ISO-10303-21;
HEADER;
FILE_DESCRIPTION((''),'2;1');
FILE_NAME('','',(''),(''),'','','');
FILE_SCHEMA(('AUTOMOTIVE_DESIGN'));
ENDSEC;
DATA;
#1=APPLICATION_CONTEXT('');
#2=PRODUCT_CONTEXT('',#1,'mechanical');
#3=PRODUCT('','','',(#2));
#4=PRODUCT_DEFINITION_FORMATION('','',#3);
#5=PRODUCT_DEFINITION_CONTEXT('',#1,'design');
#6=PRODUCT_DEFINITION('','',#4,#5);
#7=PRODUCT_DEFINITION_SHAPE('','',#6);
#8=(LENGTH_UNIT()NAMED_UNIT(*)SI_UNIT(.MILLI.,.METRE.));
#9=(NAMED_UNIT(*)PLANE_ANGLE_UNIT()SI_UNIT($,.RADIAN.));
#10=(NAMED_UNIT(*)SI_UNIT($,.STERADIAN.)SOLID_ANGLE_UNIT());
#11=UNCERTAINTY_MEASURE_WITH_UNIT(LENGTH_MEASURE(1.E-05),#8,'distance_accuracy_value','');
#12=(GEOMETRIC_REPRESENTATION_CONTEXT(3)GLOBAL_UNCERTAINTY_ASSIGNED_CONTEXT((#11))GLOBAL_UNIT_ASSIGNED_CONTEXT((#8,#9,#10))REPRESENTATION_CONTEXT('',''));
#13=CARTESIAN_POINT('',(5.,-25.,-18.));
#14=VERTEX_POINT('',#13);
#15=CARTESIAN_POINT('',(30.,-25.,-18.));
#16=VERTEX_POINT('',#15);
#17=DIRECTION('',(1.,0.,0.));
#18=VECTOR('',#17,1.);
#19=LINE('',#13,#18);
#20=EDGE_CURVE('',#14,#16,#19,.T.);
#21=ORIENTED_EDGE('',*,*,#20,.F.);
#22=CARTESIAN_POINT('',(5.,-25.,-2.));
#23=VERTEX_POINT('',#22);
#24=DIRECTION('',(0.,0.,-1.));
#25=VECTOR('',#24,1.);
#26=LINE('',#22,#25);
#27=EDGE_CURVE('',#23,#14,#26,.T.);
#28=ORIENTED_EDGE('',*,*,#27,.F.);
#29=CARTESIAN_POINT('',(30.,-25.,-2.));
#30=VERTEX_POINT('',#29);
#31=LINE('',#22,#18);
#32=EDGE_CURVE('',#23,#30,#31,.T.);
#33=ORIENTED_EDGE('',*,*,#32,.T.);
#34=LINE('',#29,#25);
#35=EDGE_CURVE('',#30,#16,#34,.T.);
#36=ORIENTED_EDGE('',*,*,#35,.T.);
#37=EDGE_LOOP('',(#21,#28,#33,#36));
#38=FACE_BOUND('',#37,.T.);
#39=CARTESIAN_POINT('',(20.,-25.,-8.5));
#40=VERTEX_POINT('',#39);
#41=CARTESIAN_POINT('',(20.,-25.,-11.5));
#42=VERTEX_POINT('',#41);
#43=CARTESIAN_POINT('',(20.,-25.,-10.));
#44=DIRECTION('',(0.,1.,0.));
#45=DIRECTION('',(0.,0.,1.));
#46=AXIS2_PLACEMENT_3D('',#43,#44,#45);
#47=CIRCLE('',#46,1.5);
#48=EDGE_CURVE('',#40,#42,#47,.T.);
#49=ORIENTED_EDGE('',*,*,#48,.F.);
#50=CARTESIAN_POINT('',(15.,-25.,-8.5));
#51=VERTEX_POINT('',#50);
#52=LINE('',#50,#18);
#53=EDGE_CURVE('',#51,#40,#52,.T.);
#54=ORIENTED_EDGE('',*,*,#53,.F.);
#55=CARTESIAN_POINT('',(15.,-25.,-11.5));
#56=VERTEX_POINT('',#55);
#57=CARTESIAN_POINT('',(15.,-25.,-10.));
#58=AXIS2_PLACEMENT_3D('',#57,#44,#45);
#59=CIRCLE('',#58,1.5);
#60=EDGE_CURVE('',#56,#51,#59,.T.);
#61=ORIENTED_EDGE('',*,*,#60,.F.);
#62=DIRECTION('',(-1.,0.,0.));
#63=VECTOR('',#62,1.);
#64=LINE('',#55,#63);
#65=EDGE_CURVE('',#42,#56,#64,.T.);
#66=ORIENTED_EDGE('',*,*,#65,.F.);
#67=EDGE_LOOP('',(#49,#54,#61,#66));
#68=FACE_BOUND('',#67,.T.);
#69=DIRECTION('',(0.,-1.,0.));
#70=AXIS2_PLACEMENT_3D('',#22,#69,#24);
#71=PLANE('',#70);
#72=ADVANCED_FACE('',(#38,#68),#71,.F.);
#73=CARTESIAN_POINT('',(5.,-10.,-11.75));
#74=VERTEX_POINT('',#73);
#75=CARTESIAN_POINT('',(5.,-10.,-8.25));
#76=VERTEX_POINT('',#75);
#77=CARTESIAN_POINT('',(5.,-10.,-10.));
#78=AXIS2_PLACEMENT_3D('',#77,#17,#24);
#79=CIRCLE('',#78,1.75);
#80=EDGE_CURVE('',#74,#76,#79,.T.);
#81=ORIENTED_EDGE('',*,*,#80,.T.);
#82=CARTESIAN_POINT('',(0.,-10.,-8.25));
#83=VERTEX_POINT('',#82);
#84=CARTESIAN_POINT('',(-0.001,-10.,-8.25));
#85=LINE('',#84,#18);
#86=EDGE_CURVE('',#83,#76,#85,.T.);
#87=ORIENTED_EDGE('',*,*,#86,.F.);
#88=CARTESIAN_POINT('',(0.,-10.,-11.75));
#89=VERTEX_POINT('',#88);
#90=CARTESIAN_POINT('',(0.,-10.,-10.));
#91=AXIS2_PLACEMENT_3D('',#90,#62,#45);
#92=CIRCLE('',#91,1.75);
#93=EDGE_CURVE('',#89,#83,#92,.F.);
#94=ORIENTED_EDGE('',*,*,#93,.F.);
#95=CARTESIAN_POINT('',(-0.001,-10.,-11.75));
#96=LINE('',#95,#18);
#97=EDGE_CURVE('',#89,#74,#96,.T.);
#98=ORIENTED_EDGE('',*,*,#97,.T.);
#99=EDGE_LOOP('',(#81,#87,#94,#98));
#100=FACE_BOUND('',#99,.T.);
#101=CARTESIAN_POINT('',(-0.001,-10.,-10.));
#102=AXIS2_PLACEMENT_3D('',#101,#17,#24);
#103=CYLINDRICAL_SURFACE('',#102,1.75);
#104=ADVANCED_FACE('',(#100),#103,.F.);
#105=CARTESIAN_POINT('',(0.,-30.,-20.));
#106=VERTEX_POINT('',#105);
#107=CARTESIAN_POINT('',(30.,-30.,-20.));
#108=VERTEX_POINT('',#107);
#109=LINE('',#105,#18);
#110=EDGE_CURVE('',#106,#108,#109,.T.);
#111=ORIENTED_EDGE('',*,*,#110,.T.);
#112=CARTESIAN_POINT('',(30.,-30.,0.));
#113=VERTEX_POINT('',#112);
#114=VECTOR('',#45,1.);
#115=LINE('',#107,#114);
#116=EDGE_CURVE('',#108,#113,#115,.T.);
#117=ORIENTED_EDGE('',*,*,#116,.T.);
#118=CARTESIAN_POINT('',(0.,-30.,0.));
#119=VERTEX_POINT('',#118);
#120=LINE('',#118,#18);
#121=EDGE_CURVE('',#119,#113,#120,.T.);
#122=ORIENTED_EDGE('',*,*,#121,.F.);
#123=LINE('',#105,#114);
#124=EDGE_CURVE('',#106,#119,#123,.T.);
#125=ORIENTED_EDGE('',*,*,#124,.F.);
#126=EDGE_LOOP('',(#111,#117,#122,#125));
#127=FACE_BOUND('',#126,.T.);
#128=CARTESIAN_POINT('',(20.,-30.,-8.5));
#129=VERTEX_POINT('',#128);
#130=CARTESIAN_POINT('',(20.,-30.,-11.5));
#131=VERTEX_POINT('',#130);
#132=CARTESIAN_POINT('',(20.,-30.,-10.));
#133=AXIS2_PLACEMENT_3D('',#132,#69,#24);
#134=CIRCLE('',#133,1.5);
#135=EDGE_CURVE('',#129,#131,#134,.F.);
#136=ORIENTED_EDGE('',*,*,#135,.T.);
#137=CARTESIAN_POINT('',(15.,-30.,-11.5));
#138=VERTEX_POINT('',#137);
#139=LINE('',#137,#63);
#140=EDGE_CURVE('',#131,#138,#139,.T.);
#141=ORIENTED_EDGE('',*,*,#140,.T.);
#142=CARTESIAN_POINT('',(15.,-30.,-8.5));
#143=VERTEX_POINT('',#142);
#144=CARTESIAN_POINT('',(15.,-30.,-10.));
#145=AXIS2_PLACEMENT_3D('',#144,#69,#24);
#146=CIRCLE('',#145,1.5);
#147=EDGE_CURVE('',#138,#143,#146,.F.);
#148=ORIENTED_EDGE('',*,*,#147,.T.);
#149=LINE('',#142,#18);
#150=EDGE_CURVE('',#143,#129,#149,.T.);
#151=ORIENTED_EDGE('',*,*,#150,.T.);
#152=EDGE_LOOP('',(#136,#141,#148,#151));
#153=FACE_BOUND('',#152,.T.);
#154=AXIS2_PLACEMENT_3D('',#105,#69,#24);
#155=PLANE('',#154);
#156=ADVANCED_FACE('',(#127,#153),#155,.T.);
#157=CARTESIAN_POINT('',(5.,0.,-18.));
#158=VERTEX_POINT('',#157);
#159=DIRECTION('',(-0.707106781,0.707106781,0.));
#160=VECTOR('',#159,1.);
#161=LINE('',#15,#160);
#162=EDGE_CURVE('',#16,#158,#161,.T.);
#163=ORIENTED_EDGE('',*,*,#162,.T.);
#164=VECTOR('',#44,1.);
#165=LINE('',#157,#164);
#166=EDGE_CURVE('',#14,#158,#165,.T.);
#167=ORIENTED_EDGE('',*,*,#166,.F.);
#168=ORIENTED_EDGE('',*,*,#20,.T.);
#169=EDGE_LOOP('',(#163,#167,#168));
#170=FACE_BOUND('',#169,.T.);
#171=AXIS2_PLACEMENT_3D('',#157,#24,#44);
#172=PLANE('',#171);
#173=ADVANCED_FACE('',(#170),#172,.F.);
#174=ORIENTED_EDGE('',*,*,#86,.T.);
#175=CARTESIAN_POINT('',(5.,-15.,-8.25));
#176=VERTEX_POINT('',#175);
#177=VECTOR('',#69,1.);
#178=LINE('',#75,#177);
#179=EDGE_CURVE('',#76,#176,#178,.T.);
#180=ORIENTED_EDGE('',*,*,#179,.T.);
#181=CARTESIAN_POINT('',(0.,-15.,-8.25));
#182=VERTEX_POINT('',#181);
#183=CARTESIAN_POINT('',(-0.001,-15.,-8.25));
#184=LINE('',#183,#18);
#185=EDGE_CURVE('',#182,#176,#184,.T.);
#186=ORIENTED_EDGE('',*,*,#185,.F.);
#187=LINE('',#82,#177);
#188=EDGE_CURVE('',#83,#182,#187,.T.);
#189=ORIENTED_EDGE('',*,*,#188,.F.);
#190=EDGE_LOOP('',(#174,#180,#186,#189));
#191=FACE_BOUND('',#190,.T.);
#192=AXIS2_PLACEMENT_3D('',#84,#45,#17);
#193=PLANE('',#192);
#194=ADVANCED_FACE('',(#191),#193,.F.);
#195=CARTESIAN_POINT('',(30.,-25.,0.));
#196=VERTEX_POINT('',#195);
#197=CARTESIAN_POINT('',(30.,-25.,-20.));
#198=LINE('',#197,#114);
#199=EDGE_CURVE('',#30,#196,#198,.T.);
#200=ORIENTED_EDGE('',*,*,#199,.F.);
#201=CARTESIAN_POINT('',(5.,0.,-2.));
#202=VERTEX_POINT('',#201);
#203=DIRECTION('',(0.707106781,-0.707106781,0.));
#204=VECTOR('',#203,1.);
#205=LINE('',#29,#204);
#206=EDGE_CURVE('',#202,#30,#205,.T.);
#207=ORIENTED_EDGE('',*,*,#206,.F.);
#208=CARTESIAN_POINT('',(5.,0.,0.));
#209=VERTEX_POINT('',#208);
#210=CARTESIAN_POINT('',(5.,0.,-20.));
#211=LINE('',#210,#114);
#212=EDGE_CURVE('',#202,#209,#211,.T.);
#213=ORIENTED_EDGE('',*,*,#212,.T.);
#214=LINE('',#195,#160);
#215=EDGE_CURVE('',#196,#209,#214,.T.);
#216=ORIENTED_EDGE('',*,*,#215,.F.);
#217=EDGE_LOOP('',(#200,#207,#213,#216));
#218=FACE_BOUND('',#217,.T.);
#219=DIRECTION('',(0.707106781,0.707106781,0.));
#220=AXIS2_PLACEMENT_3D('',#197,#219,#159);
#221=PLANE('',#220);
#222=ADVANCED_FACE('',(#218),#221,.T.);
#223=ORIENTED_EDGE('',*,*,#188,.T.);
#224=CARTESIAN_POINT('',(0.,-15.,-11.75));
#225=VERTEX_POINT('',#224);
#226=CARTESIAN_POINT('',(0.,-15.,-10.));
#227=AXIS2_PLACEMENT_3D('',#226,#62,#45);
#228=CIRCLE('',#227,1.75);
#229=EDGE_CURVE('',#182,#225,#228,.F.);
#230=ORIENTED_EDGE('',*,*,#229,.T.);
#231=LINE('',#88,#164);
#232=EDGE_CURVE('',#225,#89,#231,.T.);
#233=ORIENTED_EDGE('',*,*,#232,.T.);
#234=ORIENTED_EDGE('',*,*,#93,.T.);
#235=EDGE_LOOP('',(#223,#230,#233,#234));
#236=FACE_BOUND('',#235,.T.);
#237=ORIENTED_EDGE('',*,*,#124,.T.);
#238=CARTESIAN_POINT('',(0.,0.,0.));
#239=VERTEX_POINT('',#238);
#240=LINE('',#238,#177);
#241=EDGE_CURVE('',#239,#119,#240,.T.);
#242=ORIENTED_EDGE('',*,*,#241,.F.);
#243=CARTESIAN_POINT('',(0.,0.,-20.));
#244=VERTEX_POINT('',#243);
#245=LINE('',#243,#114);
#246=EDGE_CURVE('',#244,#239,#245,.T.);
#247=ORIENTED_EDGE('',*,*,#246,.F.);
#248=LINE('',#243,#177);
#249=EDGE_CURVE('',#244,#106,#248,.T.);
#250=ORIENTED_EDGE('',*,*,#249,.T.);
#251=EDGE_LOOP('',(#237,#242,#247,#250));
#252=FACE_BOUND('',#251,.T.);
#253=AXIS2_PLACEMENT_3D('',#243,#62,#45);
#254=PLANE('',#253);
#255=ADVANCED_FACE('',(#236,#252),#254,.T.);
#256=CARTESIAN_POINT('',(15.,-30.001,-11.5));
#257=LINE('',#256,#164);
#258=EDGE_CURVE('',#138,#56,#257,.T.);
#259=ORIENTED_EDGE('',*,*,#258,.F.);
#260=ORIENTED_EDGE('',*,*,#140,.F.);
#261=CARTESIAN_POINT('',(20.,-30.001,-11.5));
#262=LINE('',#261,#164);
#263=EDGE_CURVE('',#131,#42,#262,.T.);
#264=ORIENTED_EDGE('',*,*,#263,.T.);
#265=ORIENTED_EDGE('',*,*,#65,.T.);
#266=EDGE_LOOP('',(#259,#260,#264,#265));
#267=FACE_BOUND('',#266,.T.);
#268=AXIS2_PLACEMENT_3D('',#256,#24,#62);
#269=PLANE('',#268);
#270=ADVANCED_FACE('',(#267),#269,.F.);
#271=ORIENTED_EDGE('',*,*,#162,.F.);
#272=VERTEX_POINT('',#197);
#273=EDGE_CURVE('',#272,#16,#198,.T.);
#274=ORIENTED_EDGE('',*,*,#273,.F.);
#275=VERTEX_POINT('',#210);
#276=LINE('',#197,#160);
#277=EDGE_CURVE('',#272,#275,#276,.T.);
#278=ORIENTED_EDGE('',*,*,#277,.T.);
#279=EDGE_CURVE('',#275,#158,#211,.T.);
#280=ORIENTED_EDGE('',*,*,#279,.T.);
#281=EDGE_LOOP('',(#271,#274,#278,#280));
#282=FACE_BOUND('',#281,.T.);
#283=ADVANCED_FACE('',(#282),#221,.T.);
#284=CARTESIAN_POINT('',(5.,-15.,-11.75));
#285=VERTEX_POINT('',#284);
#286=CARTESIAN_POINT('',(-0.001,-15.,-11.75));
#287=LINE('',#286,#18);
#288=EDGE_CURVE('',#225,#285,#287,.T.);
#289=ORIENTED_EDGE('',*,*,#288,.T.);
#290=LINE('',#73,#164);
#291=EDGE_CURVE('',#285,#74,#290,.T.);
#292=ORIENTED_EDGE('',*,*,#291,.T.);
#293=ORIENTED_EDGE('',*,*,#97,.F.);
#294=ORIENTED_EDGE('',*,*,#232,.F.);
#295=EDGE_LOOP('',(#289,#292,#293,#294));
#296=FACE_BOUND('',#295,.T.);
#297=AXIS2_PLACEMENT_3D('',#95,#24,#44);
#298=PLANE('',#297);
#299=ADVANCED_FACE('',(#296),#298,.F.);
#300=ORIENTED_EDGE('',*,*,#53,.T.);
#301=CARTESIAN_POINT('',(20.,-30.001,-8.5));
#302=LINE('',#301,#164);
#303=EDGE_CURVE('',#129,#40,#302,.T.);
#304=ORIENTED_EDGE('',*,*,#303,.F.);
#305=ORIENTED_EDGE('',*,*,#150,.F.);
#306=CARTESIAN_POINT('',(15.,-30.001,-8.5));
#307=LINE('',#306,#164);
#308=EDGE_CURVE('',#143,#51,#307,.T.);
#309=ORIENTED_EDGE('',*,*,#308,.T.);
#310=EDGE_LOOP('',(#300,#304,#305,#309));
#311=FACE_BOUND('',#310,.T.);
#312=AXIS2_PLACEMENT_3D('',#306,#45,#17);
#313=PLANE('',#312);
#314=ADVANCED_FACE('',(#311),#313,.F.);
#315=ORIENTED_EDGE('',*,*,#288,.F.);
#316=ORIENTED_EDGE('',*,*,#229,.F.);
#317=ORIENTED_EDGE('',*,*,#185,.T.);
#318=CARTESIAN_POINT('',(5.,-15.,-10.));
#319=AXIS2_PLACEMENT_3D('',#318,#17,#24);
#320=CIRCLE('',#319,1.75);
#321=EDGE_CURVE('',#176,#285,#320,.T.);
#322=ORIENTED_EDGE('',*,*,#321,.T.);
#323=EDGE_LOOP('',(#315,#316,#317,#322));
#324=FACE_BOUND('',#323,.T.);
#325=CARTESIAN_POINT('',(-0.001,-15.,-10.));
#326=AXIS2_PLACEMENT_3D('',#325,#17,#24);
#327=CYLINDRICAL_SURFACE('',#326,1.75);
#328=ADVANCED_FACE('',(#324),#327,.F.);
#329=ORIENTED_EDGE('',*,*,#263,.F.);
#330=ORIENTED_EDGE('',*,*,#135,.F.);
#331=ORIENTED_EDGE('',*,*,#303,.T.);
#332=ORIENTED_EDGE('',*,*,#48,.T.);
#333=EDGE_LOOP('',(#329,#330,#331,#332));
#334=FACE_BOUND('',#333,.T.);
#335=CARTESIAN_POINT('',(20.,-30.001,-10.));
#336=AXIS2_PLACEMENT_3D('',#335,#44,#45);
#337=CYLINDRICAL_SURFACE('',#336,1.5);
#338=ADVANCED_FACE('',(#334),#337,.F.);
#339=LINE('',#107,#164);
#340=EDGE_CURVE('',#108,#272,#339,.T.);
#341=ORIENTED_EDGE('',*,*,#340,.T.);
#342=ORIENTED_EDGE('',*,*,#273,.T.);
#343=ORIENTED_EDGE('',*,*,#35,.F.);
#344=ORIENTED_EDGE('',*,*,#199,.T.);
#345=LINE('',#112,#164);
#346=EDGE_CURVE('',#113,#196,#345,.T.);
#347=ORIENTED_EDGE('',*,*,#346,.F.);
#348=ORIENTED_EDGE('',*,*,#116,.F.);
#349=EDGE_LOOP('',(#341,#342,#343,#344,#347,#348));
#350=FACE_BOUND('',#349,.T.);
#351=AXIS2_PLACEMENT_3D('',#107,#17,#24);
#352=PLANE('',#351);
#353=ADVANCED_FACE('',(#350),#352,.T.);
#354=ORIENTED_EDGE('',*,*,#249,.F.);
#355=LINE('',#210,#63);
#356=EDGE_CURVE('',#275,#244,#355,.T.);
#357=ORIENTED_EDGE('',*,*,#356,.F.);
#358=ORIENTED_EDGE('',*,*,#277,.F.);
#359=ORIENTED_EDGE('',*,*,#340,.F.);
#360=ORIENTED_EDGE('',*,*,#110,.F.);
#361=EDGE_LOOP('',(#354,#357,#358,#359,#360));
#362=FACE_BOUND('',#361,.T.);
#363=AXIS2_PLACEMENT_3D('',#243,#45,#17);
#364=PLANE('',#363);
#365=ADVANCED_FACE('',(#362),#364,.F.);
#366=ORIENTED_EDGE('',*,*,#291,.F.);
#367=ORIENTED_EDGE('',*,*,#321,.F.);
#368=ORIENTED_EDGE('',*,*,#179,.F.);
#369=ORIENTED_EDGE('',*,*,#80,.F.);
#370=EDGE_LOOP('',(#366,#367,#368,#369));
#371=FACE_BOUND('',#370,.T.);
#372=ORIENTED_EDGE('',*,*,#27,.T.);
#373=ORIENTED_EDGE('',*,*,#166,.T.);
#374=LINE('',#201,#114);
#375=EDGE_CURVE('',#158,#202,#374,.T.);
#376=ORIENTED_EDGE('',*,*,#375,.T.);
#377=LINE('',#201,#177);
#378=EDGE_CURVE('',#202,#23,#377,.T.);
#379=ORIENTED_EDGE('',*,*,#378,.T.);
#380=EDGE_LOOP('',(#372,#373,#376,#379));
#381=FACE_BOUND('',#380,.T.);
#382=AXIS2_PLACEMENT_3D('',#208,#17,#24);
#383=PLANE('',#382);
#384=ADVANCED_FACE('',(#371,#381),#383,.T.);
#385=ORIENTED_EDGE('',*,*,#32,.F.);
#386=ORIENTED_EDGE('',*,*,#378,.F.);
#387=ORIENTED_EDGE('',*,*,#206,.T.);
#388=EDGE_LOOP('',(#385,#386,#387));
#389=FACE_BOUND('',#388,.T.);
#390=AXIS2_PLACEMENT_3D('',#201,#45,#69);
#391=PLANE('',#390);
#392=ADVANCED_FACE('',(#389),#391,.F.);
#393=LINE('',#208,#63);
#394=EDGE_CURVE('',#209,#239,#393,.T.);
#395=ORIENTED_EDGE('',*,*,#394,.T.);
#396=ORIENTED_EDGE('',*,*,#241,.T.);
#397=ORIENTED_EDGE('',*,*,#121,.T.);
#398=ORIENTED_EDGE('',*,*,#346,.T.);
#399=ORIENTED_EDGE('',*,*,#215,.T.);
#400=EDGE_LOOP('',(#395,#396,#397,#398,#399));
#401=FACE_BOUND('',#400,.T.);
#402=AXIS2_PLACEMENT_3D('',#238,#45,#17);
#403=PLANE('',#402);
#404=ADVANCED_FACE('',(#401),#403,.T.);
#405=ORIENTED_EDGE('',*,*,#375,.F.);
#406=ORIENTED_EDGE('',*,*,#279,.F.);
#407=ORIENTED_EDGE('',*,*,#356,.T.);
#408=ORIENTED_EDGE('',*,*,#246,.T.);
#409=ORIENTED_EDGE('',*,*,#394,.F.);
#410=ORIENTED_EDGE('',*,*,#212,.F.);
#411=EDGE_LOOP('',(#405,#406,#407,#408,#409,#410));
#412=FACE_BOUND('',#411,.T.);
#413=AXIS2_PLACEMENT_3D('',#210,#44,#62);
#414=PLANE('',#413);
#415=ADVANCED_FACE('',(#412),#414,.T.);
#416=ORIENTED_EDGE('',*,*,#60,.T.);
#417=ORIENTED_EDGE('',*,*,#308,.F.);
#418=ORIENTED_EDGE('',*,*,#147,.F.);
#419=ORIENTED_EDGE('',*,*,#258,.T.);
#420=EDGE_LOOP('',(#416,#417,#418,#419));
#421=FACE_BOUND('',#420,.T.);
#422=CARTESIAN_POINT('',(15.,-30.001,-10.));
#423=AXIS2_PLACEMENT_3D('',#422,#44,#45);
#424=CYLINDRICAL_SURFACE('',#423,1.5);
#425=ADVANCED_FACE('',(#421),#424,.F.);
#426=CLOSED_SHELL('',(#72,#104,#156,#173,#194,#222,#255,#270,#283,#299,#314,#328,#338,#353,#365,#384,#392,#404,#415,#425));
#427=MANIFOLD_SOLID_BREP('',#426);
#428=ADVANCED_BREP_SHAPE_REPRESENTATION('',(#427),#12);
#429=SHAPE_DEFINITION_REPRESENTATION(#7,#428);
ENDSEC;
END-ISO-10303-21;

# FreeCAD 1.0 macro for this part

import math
import FreeCAD as App
import Part
import Sketcher
from FreeCAD import Vector
Q = App.Units.Quantity

doc = App.newDocument("Part")
body = doc.addObject("PartDesign::Body", "Body")

# Sketch on XY plane
sketch1 = doc.addObject("Sketcher::SketchObject", "Sketch")
body.addObject(sketch1)
sketch1.AttachmentSupport = (doc.XY_Plane, [""])
sketch1.MapMode = "FlatFace"
sketch1.addGeometry([
    Part.LineSegment(Vector(0, 0, 0), Vector(0, -30, 0)),  # 0
    Part.LineSegment(Vector(0, -30, 0), Vector(30, -30, 0)),  # 1
    Part.LineSegment(Vector(30, -30, 0), Vector(30, -25, 0)),  # 2
    Part.LineSegment(Vector(30, -25, 0), Vector(5, 0, 0)),  # 3
    Part.LineSegment(Vector(5, 0, 0), Vector(0, 0, 0)),  # 4
], False)
sketch1.addConstraint([
    Sketcher.Constraint("Coincident", 0, 2, 1, 1),
    Sketcher.Constraint("Coincident", 1, 2, 2, 1),
    Sketcher.Constraint("Coincident", 2, 2, 3, 1),
    Sketcher.Constraint("Coincident", 3, 2, 4, 1),
    Sketcher.Constraint("Coincident", 4, 2, 0, 1),
    Sketcher.Constraint("Vertical", 0),
    Sketcher.Constraint("Horizontal", 1),
    Sketcher.Constraint("Vertical", 2),
    Sketcher.Constraint("Horizontal", 4),
    Sketcher.Constraint("Coincident", 4, 2, -1, 1),
    Sketcher.Constraint("Equal", 1, 0),
    Sketcher.Constraint("Equal", 4, 2),
    Sketcher.Constraint("DistanceX", 1, 1, 1, 2, Q("30 mm")),
    Sketcher.Constraint("DistanceX", 4, 2, 4, 1, Q("5 mm")),
])
pad1 = doc.addObject("PartDesign::Pad", "Pad")
body.addObject(pad1)
pad1.Profile = sketch1
pad1.Length = 20
pad1.Reversed = True

# Sketch on YZ plane
sketch2 = doc.addObject("Sketcher::SketchObject", "Sketch001")
body.addObject(sketch2)
sketch2.AttachmentSupport = (doc.YZ_Plane, [""])
sketch2.MapMode = "FlatFace"
sketch2.AttachmentOffset = App.Placement(Vector(0, 0, 30), App.Rotation())
sketch2.addGeometry([
    Part.LineSegment(Vector(0, -2, 0), Vector(-25, -2, 0)),
    Part.LineSegment(Vector(-25, -2, 0), Vector(-25, -18, 0)),
    Part.LineSegment(Vector(-25, -18, 0), Vector(0, -18, 0)),
    Part.LineSegment(Vector(0, -18, 0), Vector(0, -2, 0)),
], False)
sketch2.addConstraint([
    Sketcher.Constraint("Coincident", 0, 2, 1, 1),
    Sketcher.Constraint("Coincident", 1, 2, 2, 1),
    Sketcher.Constraint("Coincident", 2, 2, 3, 1),
    Sketcher.Constraint("Coincident", 3, 2, 0, 1),
    Sketcher.Constraint("Horizontal", 0),
    Sketcher.Constraint("Vertical", 1),
    Sketcher.Constraint("Horizontal", 2),
    Sketcher.Constraint("Vertical", 3),
    Sketcher.Constraint("PointOnObject", 2, 2, -2),
    Sketcher.Constraint("DistanceX", 0, 2, 0, 1, Q("25 mm")),
    Sketcher.Constraint("DistanceY", 1, 2, 1, 1, Q("16 mm")),
    Sketcher.Constraint("DistanceY", 0, 2, -1, 1, Q("2 mm")),
])
pocket1 = doc.addObject("PartDesign::Pocket", "Pocket")
body.addObject(pocket1)
pocket1.Profile = sketch2
pocket1.Length = 25

# Sketch on YZ plane
sketch3 = doc.addObject("Sketcher::SketchObject", "Sketch002")
body.addObject(sketch3)
sketch3.AttachmentSupport = (doc.YZ_Plane, [""])
sketch3.MapMode = "FlatFace"
sketch3.AttachmentOffset = App.Placement(Vector(0, 0, 5), App.Rotation())
sketch3.addGeometry([
    Part.LineSegment(Vector(-15, -11.8, 0), Vector(-10, -11.8, 0)),
    Part.ArcOfCircle(Part.Circle(Vector(-10, -10, 0), Vector(0, 0, 1), 1.8), math.radians(-90), math.radians(90)),
    Part.LineSegment(Vector(-10, -8.2, 0), Vector(-15, -8.2, 0)),
    Part.ArcOfCircle(Part.Circle(Vector(-15, -10, 0), Vector(0, 0, 1), 1.8), math.radians(90), math.radians(270)),
], False)
sketch3.addConstraint([
    Sketcher.Constraint("Tangent", 0, 2, 1, 1),
    Sketcher.Constraint("Tangent", 1, 2, 2, 1),
    Sketcher.Constraint("Tangent", 2, 2, 3, 1),
    Sketcher.Constraint("Tangent", 3, 2, 0, 1),
    Sketcher.Constraint("Horizontal", 0),
    Sketcher.Constraint("Horizontal", 2),
    Sketcher.Constraint("DistanceX", 0, 1, 0, 2, Q("5 mm")),
    Sketcher.Constraint("Radius", 1, Q("1.75 mm")),
    Sketcher.Constraint("DistanceX", 1, 3, -1, 1, Q("10 mm")),
    Sketcher.Constraint("DistanceY", 1, 3, -1, 1, Q("10 mm")),
])
pocket2 = doc.addObject("PartDesign::Pocket", "Pocket001")
body.addObject(pocket2)
pocket2.Profile = sketch3
pocket2.Type = "UpToFirst"

# Sketch on XZ plane
sketch4 = doc.addObject("Sketcher::SketchObject", "Sketch003")
body.addObject(sketch4)
sketch4.AttachmentSupport = (doc.XZ_Plane, [""])
sketch4.MapMode = "FlatFace"
sketch4.AttachmentOffset = App.Placement(Vector(0, 0, 25), App.Rotation())
sketch4.addGeometry([
    Part.LineSegment(Vector(20, -11.5, 0), Vector(15, -11.5, 0)),
    Part.ArcOfCircle(Part.Circle(Vector(15, -10, 0), Vector(0, 0, 1), 1.5), math.radians(90), math.radians(270)),
    Part.LineSegment(Vector(15, -8.5, 0), Vector(20, -8.5, 0)),
    Part.ArcOfCircle(Part.Circle(Vector(20, -10, 0), Vector(0, 0, 1), 1.5), math.radians(-90), math.radians(90)),
], False)
sketch4.addConstraint([
    Sketcher.Constraint("Tangent", 0, 2, 1, 2),
    Sketcher.Constraint("Tangent", 1, 1, 2, 1),
    Sketcher.Constraint("Tangent", 2, 2, 3, 2),
    Sketcher.Constraint("Tangent", 3, 1, 0, 1),
    Sketcher.Constraint("Horizontal", 0),
    Sketcher.Constraint("Horizontal", 2),
    Sketcher.Constraint("Radius", 1, Q("1.5 mm")),
    Sketcher.Constraint("DistanceX", 0, 2, 0, 1, Q("5 mm")),
    Sketcher.Constraint("DistanceX", -1, 1, 1, 3, Q("15 mm")),
    Sketcher.Constraint("DistanceY", 1, 3, -1, 1, Q("10 mm")),
])
pocket3 = doc.addObject("PartDesign::Pocket", "Pocket002")
body.addObject(pocket3)
pocket3.Profile = sketch4
pocket3.Type = "UpToFirst"
pocket3.Reversed = True

doc.recompute()
